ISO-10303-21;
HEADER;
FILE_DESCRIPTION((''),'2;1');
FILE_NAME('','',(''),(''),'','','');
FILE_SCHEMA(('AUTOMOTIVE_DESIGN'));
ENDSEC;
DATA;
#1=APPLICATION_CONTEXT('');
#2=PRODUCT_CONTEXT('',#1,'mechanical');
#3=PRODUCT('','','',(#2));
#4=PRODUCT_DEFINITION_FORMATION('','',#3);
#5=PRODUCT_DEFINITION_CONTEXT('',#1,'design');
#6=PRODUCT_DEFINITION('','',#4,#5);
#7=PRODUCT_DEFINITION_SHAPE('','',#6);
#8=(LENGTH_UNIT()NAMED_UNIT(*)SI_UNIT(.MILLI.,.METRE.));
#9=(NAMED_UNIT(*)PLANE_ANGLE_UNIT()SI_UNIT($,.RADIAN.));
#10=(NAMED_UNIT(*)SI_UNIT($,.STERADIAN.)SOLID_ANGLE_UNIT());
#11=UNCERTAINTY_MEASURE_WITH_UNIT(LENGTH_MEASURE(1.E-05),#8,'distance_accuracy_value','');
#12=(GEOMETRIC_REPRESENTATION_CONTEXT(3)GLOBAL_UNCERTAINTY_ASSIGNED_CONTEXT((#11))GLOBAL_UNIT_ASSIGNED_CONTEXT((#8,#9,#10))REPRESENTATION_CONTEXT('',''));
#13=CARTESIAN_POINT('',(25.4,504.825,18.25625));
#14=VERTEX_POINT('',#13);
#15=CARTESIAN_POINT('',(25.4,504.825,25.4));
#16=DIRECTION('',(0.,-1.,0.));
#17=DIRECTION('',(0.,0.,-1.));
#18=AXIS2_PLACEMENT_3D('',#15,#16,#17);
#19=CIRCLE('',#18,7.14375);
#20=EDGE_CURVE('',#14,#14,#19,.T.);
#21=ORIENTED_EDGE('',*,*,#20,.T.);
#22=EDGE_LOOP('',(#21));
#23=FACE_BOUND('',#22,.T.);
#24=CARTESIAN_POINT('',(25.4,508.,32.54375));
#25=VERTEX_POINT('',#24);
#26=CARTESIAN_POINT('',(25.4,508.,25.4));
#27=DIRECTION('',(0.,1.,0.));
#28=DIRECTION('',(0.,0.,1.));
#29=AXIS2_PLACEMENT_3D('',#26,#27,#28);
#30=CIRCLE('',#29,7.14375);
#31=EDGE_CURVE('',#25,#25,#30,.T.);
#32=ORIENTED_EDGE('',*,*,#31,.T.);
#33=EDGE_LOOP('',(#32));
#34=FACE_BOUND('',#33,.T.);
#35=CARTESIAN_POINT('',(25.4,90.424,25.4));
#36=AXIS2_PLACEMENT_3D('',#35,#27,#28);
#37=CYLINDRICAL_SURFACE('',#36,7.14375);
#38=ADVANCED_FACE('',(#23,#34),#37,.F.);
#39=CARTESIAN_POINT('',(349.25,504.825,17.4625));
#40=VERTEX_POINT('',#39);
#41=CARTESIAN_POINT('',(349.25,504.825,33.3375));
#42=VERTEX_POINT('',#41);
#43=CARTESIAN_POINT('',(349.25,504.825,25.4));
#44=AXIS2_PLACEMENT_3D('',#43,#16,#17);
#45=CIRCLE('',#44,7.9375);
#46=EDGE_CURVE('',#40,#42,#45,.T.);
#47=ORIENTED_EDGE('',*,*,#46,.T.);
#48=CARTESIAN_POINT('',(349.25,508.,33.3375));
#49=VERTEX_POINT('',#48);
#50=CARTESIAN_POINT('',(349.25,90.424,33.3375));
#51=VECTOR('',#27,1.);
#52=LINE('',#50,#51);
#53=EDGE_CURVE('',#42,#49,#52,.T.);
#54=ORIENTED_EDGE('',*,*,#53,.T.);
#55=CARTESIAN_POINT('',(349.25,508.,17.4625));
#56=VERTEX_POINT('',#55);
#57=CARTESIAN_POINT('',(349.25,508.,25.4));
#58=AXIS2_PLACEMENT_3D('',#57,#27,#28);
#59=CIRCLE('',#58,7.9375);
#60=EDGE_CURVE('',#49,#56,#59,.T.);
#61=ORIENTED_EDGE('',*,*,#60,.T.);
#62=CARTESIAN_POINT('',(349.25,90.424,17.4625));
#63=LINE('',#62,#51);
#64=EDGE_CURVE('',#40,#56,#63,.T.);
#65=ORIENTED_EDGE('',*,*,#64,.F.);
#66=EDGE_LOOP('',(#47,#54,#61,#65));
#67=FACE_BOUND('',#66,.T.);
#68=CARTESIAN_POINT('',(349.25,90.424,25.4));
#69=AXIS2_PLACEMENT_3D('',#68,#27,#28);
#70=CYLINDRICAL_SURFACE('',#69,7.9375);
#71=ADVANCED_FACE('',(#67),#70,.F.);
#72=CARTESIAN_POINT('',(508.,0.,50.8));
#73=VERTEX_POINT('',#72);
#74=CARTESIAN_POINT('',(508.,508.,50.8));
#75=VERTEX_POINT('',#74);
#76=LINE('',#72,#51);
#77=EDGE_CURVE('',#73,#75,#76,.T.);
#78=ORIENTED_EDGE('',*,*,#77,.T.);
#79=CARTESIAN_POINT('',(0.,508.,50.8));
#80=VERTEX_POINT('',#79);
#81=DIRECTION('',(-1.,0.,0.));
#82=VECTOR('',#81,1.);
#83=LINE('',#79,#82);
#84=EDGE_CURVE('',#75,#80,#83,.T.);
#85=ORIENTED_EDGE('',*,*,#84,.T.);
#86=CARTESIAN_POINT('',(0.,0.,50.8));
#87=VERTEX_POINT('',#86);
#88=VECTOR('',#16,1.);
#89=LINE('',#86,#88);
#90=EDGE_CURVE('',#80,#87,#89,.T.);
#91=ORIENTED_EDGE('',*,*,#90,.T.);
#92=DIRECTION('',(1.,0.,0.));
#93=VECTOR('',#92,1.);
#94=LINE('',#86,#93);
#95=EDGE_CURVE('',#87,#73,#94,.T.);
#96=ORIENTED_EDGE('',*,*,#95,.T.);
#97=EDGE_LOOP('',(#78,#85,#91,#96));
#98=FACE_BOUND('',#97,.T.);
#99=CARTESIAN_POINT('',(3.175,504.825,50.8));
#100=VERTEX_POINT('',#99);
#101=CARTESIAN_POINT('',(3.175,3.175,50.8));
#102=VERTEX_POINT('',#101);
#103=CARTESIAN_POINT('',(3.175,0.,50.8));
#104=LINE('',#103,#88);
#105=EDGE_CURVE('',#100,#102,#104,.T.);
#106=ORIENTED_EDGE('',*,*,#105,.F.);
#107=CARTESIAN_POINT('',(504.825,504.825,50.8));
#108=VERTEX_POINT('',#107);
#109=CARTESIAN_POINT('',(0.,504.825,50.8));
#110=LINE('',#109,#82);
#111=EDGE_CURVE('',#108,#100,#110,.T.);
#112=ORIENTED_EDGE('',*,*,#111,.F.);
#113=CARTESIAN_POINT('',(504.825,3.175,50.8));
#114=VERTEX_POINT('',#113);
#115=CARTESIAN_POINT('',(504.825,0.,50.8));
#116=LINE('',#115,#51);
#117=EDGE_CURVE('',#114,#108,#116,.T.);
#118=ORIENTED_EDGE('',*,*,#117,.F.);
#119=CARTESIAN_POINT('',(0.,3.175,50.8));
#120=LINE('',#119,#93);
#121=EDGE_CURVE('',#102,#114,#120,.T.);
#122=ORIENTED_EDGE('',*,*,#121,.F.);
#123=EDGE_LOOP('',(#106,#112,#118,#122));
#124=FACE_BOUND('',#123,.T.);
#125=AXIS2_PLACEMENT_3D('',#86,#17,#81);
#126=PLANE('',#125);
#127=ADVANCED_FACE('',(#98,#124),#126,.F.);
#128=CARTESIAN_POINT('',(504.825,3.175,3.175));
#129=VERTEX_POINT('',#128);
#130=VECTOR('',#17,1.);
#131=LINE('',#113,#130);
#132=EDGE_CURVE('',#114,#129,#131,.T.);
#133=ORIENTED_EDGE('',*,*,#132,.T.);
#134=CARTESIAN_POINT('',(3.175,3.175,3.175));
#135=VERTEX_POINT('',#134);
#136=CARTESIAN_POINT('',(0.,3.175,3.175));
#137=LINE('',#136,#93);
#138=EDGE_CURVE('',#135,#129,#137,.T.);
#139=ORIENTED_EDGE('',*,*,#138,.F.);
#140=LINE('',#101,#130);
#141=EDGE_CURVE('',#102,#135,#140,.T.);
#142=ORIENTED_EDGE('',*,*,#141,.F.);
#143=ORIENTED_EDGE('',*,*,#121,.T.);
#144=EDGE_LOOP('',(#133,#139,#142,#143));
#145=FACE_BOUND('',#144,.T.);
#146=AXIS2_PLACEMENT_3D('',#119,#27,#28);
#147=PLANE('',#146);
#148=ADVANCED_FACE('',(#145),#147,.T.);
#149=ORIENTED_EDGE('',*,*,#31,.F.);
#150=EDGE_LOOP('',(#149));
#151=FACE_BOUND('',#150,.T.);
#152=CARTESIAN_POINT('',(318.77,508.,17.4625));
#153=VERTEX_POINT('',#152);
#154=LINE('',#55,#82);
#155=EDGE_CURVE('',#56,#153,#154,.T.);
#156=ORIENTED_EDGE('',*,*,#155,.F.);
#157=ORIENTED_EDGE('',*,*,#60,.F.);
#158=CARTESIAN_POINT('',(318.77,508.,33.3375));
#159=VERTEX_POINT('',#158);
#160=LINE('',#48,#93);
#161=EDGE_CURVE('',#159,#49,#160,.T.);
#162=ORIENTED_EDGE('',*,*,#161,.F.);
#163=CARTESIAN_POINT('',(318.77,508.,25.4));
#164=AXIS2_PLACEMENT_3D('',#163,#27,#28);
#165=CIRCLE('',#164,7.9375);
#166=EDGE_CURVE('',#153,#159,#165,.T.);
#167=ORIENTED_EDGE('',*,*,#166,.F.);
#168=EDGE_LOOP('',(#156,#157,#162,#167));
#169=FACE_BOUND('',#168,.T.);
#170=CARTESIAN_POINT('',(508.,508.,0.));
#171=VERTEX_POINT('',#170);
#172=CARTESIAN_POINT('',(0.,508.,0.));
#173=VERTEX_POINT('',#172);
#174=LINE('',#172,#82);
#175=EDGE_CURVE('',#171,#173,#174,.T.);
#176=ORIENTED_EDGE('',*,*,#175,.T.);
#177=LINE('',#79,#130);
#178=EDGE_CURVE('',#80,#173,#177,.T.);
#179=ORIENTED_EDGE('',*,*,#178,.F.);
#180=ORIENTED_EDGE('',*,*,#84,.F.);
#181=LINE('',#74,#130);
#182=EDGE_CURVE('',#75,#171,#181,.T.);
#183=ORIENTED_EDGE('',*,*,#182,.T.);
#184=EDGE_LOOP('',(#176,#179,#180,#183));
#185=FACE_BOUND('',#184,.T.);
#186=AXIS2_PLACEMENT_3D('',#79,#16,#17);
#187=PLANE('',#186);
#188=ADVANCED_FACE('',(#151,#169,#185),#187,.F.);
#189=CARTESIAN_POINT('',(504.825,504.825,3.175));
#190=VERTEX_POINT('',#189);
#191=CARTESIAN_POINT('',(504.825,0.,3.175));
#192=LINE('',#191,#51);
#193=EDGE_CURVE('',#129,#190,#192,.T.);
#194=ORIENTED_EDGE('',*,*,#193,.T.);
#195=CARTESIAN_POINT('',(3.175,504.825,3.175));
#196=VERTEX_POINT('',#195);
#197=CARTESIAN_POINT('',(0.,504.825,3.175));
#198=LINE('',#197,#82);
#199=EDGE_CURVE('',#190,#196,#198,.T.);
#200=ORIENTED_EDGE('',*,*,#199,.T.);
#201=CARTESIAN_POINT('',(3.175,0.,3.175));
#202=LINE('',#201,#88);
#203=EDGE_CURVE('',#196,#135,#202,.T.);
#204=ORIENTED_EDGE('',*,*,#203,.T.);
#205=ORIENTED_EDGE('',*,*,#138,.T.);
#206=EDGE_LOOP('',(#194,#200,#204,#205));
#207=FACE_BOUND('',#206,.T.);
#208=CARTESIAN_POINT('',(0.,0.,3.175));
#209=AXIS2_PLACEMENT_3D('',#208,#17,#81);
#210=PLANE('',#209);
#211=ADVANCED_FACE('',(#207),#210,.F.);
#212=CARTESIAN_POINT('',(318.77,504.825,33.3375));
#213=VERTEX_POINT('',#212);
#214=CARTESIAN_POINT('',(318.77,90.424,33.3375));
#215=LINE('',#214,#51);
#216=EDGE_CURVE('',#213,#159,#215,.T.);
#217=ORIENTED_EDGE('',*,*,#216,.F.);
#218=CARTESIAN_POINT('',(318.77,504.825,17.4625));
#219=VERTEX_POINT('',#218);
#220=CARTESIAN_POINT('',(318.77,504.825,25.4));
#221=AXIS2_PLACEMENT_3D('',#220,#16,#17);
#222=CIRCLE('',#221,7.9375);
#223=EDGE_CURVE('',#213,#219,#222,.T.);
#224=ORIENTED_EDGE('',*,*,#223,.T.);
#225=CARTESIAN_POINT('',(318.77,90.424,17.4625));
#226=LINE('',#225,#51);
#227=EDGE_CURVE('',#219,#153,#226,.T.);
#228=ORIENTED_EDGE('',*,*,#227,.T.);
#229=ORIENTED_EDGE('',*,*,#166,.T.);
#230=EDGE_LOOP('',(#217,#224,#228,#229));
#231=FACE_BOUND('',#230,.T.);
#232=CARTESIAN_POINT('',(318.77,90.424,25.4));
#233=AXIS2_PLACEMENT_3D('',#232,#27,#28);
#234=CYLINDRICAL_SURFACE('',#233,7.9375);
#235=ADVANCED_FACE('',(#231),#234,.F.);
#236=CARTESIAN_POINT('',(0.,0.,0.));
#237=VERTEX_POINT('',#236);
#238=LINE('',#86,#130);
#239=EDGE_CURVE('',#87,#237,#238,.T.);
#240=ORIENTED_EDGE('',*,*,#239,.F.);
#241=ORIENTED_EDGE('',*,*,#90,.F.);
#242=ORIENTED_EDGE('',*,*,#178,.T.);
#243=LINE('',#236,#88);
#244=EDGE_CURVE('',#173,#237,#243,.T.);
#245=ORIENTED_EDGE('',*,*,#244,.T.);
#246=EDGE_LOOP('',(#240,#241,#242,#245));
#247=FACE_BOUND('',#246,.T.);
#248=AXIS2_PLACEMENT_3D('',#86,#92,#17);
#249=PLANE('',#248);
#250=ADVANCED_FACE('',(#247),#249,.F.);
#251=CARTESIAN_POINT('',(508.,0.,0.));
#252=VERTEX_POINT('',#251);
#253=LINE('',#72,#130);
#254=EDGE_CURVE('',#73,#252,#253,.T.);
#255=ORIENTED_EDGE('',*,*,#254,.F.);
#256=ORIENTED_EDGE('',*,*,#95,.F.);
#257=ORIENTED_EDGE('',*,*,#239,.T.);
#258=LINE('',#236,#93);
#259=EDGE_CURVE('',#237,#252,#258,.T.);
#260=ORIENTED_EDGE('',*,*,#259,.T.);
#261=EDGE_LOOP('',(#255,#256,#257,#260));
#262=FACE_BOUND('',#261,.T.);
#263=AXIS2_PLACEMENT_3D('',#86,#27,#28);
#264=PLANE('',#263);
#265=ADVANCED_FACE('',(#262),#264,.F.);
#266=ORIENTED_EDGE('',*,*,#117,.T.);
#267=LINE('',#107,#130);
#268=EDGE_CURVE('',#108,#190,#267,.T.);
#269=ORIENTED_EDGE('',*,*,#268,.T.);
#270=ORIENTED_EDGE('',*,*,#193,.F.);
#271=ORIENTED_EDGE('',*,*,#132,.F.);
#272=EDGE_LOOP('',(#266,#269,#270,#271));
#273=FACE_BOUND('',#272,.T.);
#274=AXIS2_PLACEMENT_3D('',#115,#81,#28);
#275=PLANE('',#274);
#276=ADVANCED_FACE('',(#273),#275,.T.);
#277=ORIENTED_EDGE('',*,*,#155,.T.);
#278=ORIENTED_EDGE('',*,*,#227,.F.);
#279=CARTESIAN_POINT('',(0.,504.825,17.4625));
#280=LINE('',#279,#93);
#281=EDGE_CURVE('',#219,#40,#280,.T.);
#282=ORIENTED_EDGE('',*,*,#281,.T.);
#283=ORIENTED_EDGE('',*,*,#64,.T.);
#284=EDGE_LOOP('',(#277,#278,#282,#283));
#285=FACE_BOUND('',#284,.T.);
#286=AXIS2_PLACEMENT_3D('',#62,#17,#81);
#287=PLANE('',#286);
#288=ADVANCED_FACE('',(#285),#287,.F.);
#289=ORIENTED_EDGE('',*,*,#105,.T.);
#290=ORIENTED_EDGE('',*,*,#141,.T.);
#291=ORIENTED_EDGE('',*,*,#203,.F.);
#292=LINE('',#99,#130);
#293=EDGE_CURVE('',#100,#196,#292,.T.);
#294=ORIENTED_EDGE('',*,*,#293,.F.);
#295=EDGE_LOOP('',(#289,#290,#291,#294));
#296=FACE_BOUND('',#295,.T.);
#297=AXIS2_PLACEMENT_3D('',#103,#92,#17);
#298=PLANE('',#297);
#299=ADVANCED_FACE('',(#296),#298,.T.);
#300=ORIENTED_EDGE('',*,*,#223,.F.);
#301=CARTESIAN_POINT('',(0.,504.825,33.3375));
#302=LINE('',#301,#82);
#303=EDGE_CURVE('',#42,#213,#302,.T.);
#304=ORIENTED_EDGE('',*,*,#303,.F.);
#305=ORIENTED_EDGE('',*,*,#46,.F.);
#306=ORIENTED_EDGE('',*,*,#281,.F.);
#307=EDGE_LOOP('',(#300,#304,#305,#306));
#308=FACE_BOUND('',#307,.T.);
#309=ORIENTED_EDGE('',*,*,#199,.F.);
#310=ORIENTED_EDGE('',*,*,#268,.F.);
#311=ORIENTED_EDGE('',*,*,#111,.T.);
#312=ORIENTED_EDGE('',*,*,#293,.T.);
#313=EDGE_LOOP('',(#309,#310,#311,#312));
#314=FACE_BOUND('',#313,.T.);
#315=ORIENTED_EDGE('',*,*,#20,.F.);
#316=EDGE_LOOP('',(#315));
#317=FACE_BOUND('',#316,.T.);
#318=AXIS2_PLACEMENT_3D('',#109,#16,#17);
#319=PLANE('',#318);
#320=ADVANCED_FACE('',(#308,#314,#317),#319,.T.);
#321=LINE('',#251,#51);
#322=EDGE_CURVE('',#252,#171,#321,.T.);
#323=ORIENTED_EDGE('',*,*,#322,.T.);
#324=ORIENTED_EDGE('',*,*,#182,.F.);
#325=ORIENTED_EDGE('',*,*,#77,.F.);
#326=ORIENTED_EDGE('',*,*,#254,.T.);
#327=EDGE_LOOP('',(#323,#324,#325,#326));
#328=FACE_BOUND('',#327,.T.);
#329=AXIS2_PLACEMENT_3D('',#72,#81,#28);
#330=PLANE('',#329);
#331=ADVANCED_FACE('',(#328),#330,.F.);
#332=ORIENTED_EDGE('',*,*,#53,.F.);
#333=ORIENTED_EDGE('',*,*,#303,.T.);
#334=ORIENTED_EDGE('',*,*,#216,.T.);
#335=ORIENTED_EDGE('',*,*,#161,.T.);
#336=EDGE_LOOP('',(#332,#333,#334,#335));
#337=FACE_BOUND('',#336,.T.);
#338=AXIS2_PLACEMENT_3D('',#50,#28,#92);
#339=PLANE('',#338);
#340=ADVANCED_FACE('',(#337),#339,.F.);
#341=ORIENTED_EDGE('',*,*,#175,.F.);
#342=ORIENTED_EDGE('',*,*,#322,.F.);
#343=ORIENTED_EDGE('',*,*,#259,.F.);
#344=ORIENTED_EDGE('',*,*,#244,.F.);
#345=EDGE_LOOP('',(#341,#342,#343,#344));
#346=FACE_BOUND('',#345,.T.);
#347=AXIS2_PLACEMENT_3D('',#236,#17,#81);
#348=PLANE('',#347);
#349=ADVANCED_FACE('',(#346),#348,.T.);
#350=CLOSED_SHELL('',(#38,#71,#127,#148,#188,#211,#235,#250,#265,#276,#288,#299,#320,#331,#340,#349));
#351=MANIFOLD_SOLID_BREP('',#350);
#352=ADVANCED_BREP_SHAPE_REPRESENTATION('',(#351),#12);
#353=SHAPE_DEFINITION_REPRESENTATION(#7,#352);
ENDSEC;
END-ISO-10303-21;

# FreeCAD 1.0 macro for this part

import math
import FreeCAD as App
import Part
import Sketcher
Q = App.Units.Quantity


def faces_at(feature, points):
    """Names of the faces that lie closest to the given points."""
    faces = feature.Shape.Faces
    near = lambda p: min(range(len(faces)), key=lambda i: faces[i].distToShape(Part.Vertex(*p))[0])
    return sorted({f"Face{near(p) + 1}" for p in points})

doc = App.newDocument("Part")
body = doc.addObject("PartDesign::Body", "Body")

sketch1 = body.newObject("Sketcher::SketchObject", "Sketch")
sketch1.AttachmentSupport = (doc.getObject("XY_Plane"), [""])
sketch1.MapMode = "FlatFace"
sketch1.addGeometry([
    Part.LineSegment(App.Vector(0, 508, 0), App.Vector(0, 0, 0)),
    Part.LineSegment(App.Vector(0, 0, 0), App.Vector(508, 0, 0)),
    Part.LineSegment(App.Vector(508, 0, 0), App.Vector(508, 508, 0)),
    Part.LineSegment(App.Vector(508, 508, 0), App.Vector(0, 508, 0)),
], False)
sketch1.addConstraint([
    Sketcher.Constraint("Coincident", 0, 2, 1, 1),
    Sketcher.Constraint("Coincident", 1, 2, 2, 1),
    Sketcher.Constraint("Coincident", 2, 2, 3, 1),
    Sketcher.Constraint("Coincident", 3, 2, 0, 1),
    Sketcher.Constraint("Vertical", 0),
    Sketcher.Constraint("Horizontal", 1),
    Sketcher.Constraint("Vertical", 2),
    Sketcher.Constraint("Horizontal", 3),
    Sketcher.Constraint("Coincident", 0, 2, -1, 1),
    Sketcher.Constraint("Equal", 3, 0),
    Sketcher.Constraint("DistanceX", 1, 1, 1, 2, Q("20 in")),
])
pad1 = body.newObject("PartDesign::Pad", "Pad")
pad1.Profile = sketch1
pad1.Length = Q("2 in")
doc.recompute()

thickness = body.newObject("PartDesign::Thickness", "Thickness")
thickness.Base = (pad1, faces_at(pad1, [(254, 254, 50.8)]))
thickness.Value = Q("0.125 in")
thickness.Reversed = True
thickness.Join = "Intersection"

sketch2 = body.newObject("Sketcher::SketchObject", "Sketch001")
sketch2.AttachmentSupport = (doc.getObject("XZ_Plane"), [""])
sketch2.MapMode = "FlatFace"
sketch2.AttachmentOffset = App.Placement(App.Vector(0, 0, -20 * 25.4), App.Rotation())
sketch2.addGeometry([
    Part.Circle(App.Vector(25, 25, 0), App.Vector(0, 0, 1), 7),
    Part.LineSegment(App.Vector(319, 33, 0), App.Vector(349, 33, 0)),
    Part.ArcOfCircle(Part.Circle(App.Vector(349, 25, 0), App.Vector(0, 0, 1), 8), math.radians(-90), math.radians(90)),
    Part.LineSegment(App.Vector(349, 17, 0), App.Vector(319, 17, 0)),
    Part.ArcOfCircle(Part.Circle(App.Vector(319, 25, 0), App.Vector(0, 0, 1), 8), math.radians(90), math.radians(270)),
], False)
sketch2.addConstraint([
    Sketcher.Constraint("Tangent", 1, 2, 2, 2),
    Sketcher.Constraint("Tangent", 2, 1, 3, 1),
    Sketcher.Constraint("Tangent", 3, 2, 4, 2),
    Sketcher.Constraint("Tangent", 4, 1, 1, 1),
    Sketcher.Constraint("Horizontal", 1),
    Sketcher.Constraint("Horizontal", 3),
    Sketcher.Constraint("Horizontal", 0, 3, 2, 3),
    Sketcher.Constraint("Diameter", 0, Q("0.5625 in")),
    Sketcher.Constraint("DistanceX", 1, 1, 1, 2, Q("1.2 in")),
    Sketcher.Constraint("DistanceX", -1, 1, 0, 3, Q("1 in")),
    Sketcher.Constraint("DistanceY", -1, 1, 0, 3, Q("1 in")),
    Sketcher.Constraint("Radius", 2, Q("0.3125 in")),
    Sketcher.Constraint("DistanceX", -1, 1, 2, 3, Q("13.75 in")),
])
pocket1 = body.newObject("PartDesign::Pocket", "Pocket")
pocket1.Profile = sketch2
pocket1.Length = Q("16.44 in")
pocket1.Reversed = True

doc.recompute()
